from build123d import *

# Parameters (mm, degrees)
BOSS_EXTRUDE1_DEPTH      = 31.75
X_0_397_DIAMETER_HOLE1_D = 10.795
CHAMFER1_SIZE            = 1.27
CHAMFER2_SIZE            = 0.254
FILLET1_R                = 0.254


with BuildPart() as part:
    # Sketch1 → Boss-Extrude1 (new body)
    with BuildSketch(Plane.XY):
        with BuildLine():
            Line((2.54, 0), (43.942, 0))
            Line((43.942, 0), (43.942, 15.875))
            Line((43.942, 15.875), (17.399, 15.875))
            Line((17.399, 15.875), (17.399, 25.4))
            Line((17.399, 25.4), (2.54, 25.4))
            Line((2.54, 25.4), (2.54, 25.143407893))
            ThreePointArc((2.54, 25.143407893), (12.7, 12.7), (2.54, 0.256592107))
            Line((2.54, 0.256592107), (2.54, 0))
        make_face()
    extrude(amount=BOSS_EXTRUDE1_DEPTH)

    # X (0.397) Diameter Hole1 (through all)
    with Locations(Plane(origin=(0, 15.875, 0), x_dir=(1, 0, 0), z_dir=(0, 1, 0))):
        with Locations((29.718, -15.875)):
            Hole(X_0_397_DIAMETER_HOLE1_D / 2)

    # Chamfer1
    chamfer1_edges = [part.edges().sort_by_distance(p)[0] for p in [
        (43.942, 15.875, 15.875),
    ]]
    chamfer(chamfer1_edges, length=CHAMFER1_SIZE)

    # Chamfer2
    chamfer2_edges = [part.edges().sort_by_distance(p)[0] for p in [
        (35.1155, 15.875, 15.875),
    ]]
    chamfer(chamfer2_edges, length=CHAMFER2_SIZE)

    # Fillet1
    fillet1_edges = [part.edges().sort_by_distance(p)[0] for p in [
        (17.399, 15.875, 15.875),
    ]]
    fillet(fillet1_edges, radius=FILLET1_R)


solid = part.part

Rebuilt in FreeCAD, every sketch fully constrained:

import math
import FreeCAD as App
import Part
import Sketcher
Q = App.Units.Quantity


def edges_at(feature, points):
    """Names of the edges that pass closest to the given points."""
    edges = feature.Shape.Edges
    near = lambda p: min(range(len(edges)), key=lambda i: edges[i].distToShape(Part.Vertex(*p))[0])
    return sorted({f"Edge{near(p) + 1}" for p in points})

doc = App.newDocument("Part")
body = doc.addObject("PartDesign::Body", "Body")

# Sketch on XY plane
sketch1 = doc.addObject("Sketcher::SketchObject", "Sketch")
body.addObject(sketch1)
sketch1.AttachmentSupport = (doc.XY_Plane, [""])
sketch1.MapMode = "FlatFace"
sketch1.addGeometry([
    Part.LineSegment(App.Vector(2.54, 0, 0), App.Vector(43.94, 0, 0)),  # 0
    Part.LineSegment(App.Vector(43.94, 0, 0), App.Vector(43.94, 15.88, 0)),  # 1
    Part.LineSegment(App.Vector(43.94, 15.88, 0), App.Vector(17.4, 15.88, 0)),  # 2
    Part.LineSegment(App.Vector(17.4, 15.88, 0), App.Vector(17.4, 25.4, 0)),  # 3
    Part.LineSegment(App.Vector(17.4, 25.4, 0), App.Vector(2.54, 25.4, 0)),  # 4
    Part.LineSegment(App.Vector(2.54, 25.4, 0), App.Vector(2.54, 25.14, 0)),  # 5
    Part.ArcOfCircle(Part.Circle(App.Vector(0, 12.7, 0), App.Vector(0, 0, 1), 12.7), math.radians(-78), math.radians(78)),  # 6
    Part.LineSegment(App.Vector(2.54, 0.26, 0), App.Vector(2.54, 0, 0)),  # 7
], False)
sketch1.addConstraint([
    Sketcher.Constraint("Coincident", 0, 2, 1, 1),
    Sketcher.Constraint("Coincident", 1, 2, 2, 1),
    Sketcher.Constraint("Coincident", 2, 2, 3, 1),
    Sketcher.Constraint("Coincident", 3, 2, 4, 1),
    Sketcher.Constraint("Coincident", 4, 2, 5, 1),
    Sketcher.Constraint("Coincident", 5, 2, 6, 2),
    Sketcher.Constraint("Coincident", 6, 1, 7, 1),
    Sketcher.Constraint("Coincident", 7, 2, 0, 1),
    Sketcher.Constraint("Horizontal", 0),
    Sketcher.Constraint("Vertical", 1),
    Sketcher.Constraint("Horizontal", 2),
    Sketcher.Constraint("Vertical", 3),
    Sketcher.Constraint("Horizontal", 4),
    Sketcher.Constraint("Vertical", 5),
    Sketcher.Constraint("Vertical", 7),
    Sketcher.Constraint("PointOnObject", 6, 3, -2),
    Sketcher.Constraint("PointOnObject", 0, 2, -1),
    Sketcher.Constraint("Vertical", 5, 2, 6, 1),
    Sketcher.Constraint("Equal", 5, 7),
    Sketcher.Constraint("Radius", 6, Q("0.5 in")),
    Sketcher.Constraint("DistanceY", -1, 1, 3, 2, Q("1 in")),
    Sketcher.Constraint("DistanceX", 0, 1, 0, 2, Q("1.63 in")),
    Sketcher.Constraint("DistanceX", -1, 1, 4, 2, Q("0.1 in")),
    Sketcher.Constraint("DistanceX", 2, 2, 2, 1, Q("1.045 in")),
    Sketcher.Constraint("DistanceY", 1, 1, 1, 2, Q("0.625 in")),
])
pad1 = doc.addObject("PartDesign::Pad", "Pad")
body.addObject(pad1)
pad1.Profile = sketch1
pad1.Length = Q("1.25 in")

# Sketch on XZ plane
sketch2 = doc.addObject("Sketcher::SketchObject", "Sketch001")
body.addObject(sketch2)
sketch2.AttachmentSupport = (doc.XZ_Plane, [""])
sketch2.MapMode = "FlatFace"
sketch2.AttachmentOffset = App.Placement(App.Vector(0, 0, -0.625 * 25.4), App.Rotation())
sketch2.addGeometry(Part.Circle(App.Vector(30, 16, 0), App.Vector(0, 0, 1), 5), False)
sketch2.addConstraint([
    Sketcher.Constraint("Diameter", 0, Q("0.425 in")),
    Sketcher.Constraint("DistanceX", -1, 1, 0, 3, Q("1.17 in")),
    Sketcher.Constraint("DistanceY", -1, 1, 0, 3, Q("0.625 in")),
])
doc.recompute()
hole = doc.addObject("PartDesign::Hole", "Hole")
body.addObject(hole)
hole.Profile = sketch2
hole.ThreadType = "None"
hole.Diameter = Q("0.425 in")
hole.DepthType = "ThroughAll"
hole.Reversed = True
doc.recompute()

chamfer = doc.addObject("PartDesign::Chamfer", "Chamfer")
body.addObject(chamfer)
chamfer.Base = (hole, edges_at(hole, [(43.942, 15.875, 15.875)]))
chamfer.Size = Q("0.05 in")
doc.recompute()

chamfer2 = doc.addObject("PartDesign::Chamfer", "Chamfer001")
body.addObject(chamfer2)
chamfer2.Base = (chamfer, edges_at(chamfer, [(35.115, 15.875, 15.875)]))
chamfer2.Size = Q("0.01 in")
doc.recompute()

fillet = doc.addObject("PartDesign::Fillet", "Fillet")
body.addObject(fillet)
fillet.Base = (chamfer2, edges_at(chamfer2, [(17.399, 15.875, 15.875)]))
fillet.Radius = Q("0.01 in")

doc.recompute()
